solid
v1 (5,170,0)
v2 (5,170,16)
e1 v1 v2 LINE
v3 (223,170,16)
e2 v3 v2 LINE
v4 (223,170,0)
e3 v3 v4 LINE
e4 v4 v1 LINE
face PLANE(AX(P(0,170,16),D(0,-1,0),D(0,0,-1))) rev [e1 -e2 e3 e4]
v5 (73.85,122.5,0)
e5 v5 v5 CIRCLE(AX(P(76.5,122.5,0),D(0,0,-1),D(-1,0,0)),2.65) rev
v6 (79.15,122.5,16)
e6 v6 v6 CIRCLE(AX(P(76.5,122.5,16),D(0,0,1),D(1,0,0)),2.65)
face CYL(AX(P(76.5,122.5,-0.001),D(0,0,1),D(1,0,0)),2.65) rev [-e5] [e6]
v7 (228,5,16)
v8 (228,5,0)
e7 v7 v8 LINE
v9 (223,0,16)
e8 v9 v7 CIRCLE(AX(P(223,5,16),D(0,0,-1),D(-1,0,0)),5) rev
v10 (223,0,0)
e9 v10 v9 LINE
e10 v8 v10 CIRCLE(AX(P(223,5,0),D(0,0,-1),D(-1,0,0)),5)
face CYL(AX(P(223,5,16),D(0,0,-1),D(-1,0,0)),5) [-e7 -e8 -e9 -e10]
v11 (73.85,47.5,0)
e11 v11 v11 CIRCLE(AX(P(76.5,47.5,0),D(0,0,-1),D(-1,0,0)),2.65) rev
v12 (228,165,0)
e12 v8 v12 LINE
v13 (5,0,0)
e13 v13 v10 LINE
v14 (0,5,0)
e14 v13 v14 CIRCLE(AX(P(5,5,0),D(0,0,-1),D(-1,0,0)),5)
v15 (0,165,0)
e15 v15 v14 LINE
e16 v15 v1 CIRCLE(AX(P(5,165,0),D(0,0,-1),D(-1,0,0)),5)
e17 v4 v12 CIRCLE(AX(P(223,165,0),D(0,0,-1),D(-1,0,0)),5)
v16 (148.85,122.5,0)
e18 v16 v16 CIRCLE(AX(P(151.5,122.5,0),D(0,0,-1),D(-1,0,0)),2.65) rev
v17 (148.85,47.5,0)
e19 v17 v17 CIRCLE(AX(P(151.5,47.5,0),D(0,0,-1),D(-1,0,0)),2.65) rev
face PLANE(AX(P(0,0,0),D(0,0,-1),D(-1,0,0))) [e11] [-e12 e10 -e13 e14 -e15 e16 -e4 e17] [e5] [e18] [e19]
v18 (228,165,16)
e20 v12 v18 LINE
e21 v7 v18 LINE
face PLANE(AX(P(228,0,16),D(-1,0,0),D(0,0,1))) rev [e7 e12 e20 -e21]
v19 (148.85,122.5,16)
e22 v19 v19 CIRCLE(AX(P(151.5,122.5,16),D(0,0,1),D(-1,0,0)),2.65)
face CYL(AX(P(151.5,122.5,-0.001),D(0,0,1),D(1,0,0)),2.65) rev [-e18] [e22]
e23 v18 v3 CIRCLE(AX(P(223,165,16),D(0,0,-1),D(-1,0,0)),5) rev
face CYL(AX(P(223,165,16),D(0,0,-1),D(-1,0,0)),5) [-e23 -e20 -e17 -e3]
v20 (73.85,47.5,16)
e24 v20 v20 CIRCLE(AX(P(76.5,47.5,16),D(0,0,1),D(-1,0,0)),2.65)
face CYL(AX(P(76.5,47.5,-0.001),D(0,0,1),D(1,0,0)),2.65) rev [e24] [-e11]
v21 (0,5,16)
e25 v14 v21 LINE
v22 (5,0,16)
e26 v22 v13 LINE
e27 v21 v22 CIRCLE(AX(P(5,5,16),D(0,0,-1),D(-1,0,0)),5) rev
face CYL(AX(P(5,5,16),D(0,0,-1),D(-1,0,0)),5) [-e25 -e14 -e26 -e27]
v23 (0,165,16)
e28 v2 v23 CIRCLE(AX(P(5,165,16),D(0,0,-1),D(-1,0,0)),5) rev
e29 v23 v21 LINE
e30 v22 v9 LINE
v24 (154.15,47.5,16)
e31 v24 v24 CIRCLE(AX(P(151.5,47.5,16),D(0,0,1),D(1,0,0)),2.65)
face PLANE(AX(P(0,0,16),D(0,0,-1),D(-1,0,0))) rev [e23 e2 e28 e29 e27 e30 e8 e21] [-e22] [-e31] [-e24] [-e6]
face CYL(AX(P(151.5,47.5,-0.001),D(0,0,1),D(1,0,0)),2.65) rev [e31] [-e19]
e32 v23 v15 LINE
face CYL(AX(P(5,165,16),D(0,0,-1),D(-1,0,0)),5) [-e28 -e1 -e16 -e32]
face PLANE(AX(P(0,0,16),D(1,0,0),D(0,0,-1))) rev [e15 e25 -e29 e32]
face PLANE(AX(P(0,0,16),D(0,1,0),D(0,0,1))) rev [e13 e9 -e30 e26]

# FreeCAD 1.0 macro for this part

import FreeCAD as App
import Part
import Sketcher
Q = App.Units.Quantity


def edges_at(feature, points):
    """Names of the edges that pass closest to the given points."""
    edges = feature.Shape.Edges
    near = lambda p: min(range(len(edges)), key=lambda i: edges[i].distToShape(Part.Vertex(*p))[0])
    return sorted({f"Edge{near(p) + 1}" for p in points})

doc = App.newDocument("Part")
params = doc.addObject("Spreadsheet::Sheet", "Params")
for row, (alias, value) in enumerate([
    ("sketch1_width", "228 mm"),
    ("sketch1_height", "170 mm"),
    ("pad1_length", "16 mm"),
    ("fillet_radius", "5 mm"),
    ("sketch2_diameter", "5.3 mm"),
    ("sketch3_diameter", "5.3 mm"),
    ("sketch4_diameter", "5.3 mm"),
    ("sketch5_diameter", "5.3 mm"),
], start=1):
    params.set(f"A{row}", alias)
    params.set(f"B{row}", "=" + value)
    params.setAlias(f"B{row}", alias)

body = doc.addObject("PartDesign::Body", "Body")

# Sketch on XY plane
sketch1 = body.newObject("Sketcher::SketchObject", "Sketch")
sketch1.AttachmentSupport = (doc.getObject("XY_Plane"), [""])
sketch1.MapMode = "FlatFace"
sketch1.addGeometry(Part.LineSegment(App.Vector(0, 170, 0), App.Vector(0, 0, 0)), False)
sketch1.addGeometry(Part.LineSegment(App.Vector(0, 0, 0), App.Vector(228, 0, 0)), False)
sketch1.addGeometry(Part.LineSegment(App.Vector(228, 0, 0), App.Vector(228, 170, 0)), False)
sketch1.addGeometry(Part.LineSegment(App.Vector(228, 170, 0), App.Vector(0, 170, 0)), False)
sketch1.addConstraint(Sketcher.Constraint("Coincident", 0, 2, 1, 1))
sketch1.addConstraint(Sketcher.Constraint("Coincident", 1, 2, 2, 1))
sketch1.addConstraint(Sketcher.Constraint("Coincident", 2, 2, 3, 1))
sketch1.addConstraint(Sketcher.Constraint("Coincident", 3, 2, 0, 1))
sketch1.addConstraint(Sketcher.Constraint("Vertical", 0))
sketch1.addConstraint(Sketcher.Constraint("Horizontal", 1))
sketch1.addConstraint(Sketcher.Constraint("Vertical", 2))
sketch1.addConstraint(Sketcher.Constraint("Horizontal", 3))
sketch1.addConstraint(Sketcher.Constraint("Coincident", 0, 2, -1, 1))
sketch1.addConstraint(Sketcher.Constraint("DistanceX", 1, 1, 1, 2, Q("228 mm")))
sketch1.addConstraint(Sketcher.Constraint("DistanceY", 0, 2, 0, 1, Q("170 mm")))
sketch1.setExpression("Constraints[9]", "Params.sketch1_width")
sketch1.setExpression("Constraints[10]", "Params.sketch1_height")
pad1 = body.newObject("PartDesign::Pad", "Pad")
pad1.Profile = sketch1
pad1.setExpression("Length", "Params.pad1_length")
doc.recompute()

fillet = body.newObject("PartDesign::Fillet", "Fillet")
fillet.Base = (pad1, edges_at(pad1, [
    (0, 170, 8),
    (228, 170, 8),
    (228, 0, 8),
    (0, 0, 8),
]))
fillet.setExpression("Radius", "Params.fillet_radius")

# Sketch on XY plane
sketch2 = body.newObject("Sketcher::SketchObject", "Sketch001")
sketch2.AttachmentSupport = (doc.getObject("XY_Plane"), [""])
sketch2.MapMode = "FlatFace"
sketch2.AttachmentOffset = App.Placement(App.Vector(0, 0, 16), App.Rotation())
sketch2.addGeometry(Part.Circle(App.Vector(76.5, 122.5, 0), App.Vector(0, 0, 1), 2.65), False)
sketch2.addConstraint(Sketcher.Constraint("Diameter", 0, Q("5.3 mm")))
sketch2.addConstraint(Sketcher.Constraint("DistanceX", -1, 1, 0, 3, Q("76.5 mm")))
sketch2.addConstraint(Sketcher.Constraint("DistanceY", -1, 1, 0, 3, Q("122.5 mm")))
sketch2.setExpression("Constraints[0]", "Params.sketch2_diameter")
pocket1 = body.newObject("PartDesign::Pocket", "Pocket")
pocket1.Profile = sketch2
pocket1.Type = "UpToFirst"

# Sketch on XY plane
sketch3 = body.newObject("Sketcher::SketchObject", "Sketch002")
sketch3.AttachmentSupport = (doc.getObject("XY_Plane"), [""])
sketch3.MapMode = "FlatFace"
sketch3.AttachmentOffset = App.Placement(App.Vector(0, 0, 16), App.Rotation())
sketch3.addGeometry(Part.Circle(App.Vector(151.5, 122.5, 0), App.Vector(0, 0, 1), 2.65), False)
sketch3.addConstraint(Sketcher.Constraint("Diameter", 0, Q("5.3 mm")))
sketch3.addConstraint(Sketcher.Constraint("DistanceX", -1, 1, 0, 3, Q("151.5 mm")))
sketch3.addConstraint(Sketcher.Constraint("DistanceY", -1, 1, 0, 3, Q("122.5 mm")))
sketch3.setExpression("Constraints[0]", "Params.sketch3_diameter")
pocket2 = body.newObject("PartDesign::Pocket", "Pocket001")
pocket2.Profile = sketch3
pocket2.Type = "UpToFirst"

# Sketch on XY plane
sketch4 = body.newObject("Sketcher::SketchObject", "Sketch003")
sketch4.AttachmentSupport = (doc.getObject("XY_Plane"), [""])
sketch4.MapMode = "FlatFace"
sketch4.AttachmentOffset = App.Placement(App.Vector(0, 0, 16), App.Rotation())
sketch4.addGeometry(Part.Circle(App.Vector(76.5, 47.5, 0), App.Vector(0, 0, 1), 2.65), False)
sketch4.addConstraint(Sketcher.Constraint("Diameter", 0, Q("5.3 mm")))
sketch4.addConstraint(Sketcher.Constraint("DistanceX", -1, 1, 0, 3, Q("76.5 mm")))
sketch4.addConstraint(Sketcher.Constraint("DistanceY", -1, 1, 0, 3, Q("47.5 mm")))
sketch4.setExpression("Constraints[0]", "Params.sketch4_diameter")
pocket3 = body.newObject("PartDesign::Pocket", "Pocket002")
pocket3.Profile = sketch4
pocket3.Type = "UpToFirst"

# Sketch on XY plane
sketch5 = body.newObject("Sketcher::SketchObject", "Sketch004")
sketch5.AttachmentSupport = (doc.getObject("XY_Plane"), [""])
sketch5.MapMode = "FlatFace"
sketch5.AttachmentOffset = App.Placement(App.Vector(0, 0, 16), App.Rotation())
sketch5.addGeometry(Part.Circle(App.Vector(151.5, 47.5, 0), App.Vector(0, 0, 1), 2.65), False)
sketch5.addConstraint(Sketcher.Constraint("Diameter", 0, Q("5.3 mm")))
sketch5.addConstraint(Sketcher.Constraint("DistanceX", -1, 1, 0, 3, Q("151.5 mm")))
sketch5.addConstraint(Sketcher.Constraint("DistanceY", -1, 1, 0, 3, Q("47.5 mm")))
sketch5.setExpression("Constraints[0]", "Params.sketch5_diameter")
pocket4 = body.newObject("PartDesign::Pocket", "Pocket003")
pocket4.Profile = sketch5
pocket4.Type = "UpToFirst"

doc.recompute()
